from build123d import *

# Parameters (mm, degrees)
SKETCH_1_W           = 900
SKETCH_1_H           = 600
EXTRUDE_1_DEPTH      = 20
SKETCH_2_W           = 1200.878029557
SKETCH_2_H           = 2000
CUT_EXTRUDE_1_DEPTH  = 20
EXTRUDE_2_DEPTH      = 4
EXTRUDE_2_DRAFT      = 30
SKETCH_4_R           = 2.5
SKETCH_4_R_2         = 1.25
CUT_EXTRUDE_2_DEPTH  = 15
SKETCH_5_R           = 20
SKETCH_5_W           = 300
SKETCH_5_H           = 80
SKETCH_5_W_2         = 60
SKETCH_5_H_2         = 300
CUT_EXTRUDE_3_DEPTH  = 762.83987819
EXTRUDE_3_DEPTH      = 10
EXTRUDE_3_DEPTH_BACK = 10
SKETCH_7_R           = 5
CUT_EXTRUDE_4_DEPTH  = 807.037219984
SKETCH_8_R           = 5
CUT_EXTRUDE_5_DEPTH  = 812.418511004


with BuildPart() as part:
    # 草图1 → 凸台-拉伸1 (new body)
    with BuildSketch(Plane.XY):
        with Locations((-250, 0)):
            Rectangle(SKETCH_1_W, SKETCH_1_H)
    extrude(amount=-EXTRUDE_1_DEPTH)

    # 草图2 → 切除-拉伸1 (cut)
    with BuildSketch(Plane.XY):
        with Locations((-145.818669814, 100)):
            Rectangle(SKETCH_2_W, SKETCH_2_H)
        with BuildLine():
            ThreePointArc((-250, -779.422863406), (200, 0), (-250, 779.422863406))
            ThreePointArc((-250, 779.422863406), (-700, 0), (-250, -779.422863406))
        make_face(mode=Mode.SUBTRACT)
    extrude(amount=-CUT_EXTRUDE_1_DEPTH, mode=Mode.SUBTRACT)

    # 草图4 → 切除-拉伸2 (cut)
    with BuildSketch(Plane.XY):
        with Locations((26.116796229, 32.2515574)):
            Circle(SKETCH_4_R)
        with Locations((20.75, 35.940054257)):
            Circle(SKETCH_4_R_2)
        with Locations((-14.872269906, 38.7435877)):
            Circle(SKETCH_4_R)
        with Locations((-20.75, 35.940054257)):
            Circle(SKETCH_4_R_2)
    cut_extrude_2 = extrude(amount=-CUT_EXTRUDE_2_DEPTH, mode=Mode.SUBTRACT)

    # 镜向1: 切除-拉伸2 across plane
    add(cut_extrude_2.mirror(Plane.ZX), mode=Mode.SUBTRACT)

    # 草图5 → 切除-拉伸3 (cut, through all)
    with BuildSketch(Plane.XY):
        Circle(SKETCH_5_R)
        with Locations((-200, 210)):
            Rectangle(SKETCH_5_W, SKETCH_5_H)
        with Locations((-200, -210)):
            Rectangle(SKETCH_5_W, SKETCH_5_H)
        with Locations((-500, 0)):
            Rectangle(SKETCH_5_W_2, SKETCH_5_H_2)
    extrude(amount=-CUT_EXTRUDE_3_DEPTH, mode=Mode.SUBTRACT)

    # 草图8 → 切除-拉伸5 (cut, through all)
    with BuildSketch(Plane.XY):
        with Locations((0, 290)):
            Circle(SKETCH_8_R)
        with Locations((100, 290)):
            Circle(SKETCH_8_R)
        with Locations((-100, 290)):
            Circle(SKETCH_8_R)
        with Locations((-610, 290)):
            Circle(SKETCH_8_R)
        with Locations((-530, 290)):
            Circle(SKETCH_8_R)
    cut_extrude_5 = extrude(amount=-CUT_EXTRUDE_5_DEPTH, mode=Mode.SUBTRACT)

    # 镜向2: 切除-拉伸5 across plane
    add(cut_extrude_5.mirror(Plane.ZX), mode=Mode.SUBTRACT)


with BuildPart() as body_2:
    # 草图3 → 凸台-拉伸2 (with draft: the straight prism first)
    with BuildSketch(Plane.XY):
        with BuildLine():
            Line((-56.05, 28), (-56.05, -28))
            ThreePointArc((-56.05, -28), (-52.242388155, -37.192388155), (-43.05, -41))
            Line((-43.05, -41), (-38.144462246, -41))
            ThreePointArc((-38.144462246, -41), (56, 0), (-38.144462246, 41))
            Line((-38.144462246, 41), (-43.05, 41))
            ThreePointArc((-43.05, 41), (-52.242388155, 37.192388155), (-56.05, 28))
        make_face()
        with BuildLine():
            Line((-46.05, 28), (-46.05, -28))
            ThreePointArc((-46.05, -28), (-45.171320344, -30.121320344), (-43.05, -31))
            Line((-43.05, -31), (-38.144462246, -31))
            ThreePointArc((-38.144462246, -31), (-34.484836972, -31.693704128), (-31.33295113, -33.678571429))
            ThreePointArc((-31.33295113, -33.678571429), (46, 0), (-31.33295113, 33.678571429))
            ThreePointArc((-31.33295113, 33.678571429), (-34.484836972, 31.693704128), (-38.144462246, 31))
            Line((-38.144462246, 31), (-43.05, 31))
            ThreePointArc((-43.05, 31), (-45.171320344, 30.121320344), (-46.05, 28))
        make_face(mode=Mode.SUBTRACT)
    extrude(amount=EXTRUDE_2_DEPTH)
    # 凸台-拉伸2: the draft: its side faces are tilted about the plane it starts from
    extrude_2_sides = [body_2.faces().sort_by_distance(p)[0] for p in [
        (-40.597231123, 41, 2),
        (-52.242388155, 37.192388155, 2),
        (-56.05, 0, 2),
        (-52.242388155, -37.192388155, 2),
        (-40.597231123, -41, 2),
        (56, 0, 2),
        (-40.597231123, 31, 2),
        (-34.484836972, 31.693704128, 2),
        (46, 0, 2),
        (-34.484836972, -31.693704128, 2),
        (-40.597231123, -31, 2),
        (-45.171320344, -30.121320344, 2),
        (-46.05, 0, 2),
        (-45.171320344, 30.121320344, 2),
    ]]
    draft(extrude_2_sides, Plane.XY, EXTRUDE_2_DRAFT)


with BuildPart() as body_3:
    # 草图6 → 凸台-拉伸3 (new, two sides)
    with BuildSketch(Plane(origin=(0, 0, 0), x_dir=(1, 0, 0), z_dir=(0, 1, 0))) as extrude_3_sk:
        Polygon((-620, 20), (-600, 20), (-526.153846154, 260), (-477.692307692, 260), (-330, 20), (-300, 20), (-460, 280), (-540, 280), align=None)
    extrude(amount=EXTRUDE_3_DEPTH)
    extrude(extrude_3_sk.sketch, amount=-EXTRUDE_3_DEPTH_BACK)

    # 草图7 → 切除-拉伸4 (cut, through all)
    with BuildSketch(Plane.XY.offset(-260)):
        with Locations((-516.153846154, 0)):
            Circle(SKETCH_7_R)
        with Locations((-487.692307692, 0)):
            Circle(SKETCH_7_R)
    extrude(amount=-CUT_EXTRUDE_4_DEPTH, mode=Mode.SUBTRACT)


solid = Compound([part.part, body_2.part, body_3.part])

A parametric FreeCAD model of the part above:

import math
import FreeCAD as App
import Part
import Sketcher

V = App.Vector
Q = App.Units.Quantity


def faces_at(feature, points):
    """Names of the faces that lie closest to the given points."""
    faces = feature.Shape.Faces
    near = lambda p: min(range(len(faces)), key=lambda i: faces[i].distToShape(Part.Vertex(*p))[0])
    return sorted({f"Face{near(p) + 1}" for p in points})


def add_polygon(sketch, points):
    """Adds a closed chain of lines whose ends are joined by coincident constraints."""
    first, n = sketch.GeometryCount, len(points)
    for a, b in zip(points, points[1:] + points[:1]):
        sketch.addGeometry(Part.LineSegment(App.Vector(*a, 0), App.Vector(*b, 0)), False)
    for i in range(n):
        sketch.addConstraint(Sketcher.Constraint("Coincident", first + i, 2, first + (i + 1) % n, 1))

doc = App.newDocument("Part")
params = doc.addObject("Spreadsheet::Sheet", "Params")
for row, (alias, value) in enumerate([
    ("sketch1_width", "900 mm"),
    ("sketch1_height", "600 mm"),
    ("pad1_length", "20 mm"),
    ("sketch2_radius", "900 mm"),
    ("sketch2_height", "2000 mm"),
    ("pocket1_length", "20 mm"),
    ("sketch3_diameter", "5 mm"),
    ("sketch3_diameter2", "2.5 mm"),
    ("pocket2_length", "15 mm"),
    ("sketch4_diameter", "40 mm"),
    ("sketch4_width", "300 mm"),
    ("sketch4_width2", "60 mm"),
    ("sketch4_height", "80 mm"),
    ("sketch5_diameter", "10 mm"),
    ("sketch6_radius", "13 mm"),
    ("sketch6_radius2", "56 mm"),
    ("sketch6_radius3", "3 mm"),
    ("sketch6_height", "56 mm"),
    ("pad2_length", "4 mm"),
    ("draft_angle", "30 deg"),
    ("sketch7_width", "20 mm"),
    ("sketch7_width2", "30 mm"),
    ("sketch7_width3", "80 mm"),
    ("pad3_length", "10 mm"),
    ("pad3_length2", "10 mm"),
    ("sketch8_diameter", "10 mm"),
], start=1):
    params.set(f"A{row}", alias)
    params.set(f"B{row}", "=" + value)
    params.setAlias(f"B{row}", alias)

body = doc.addObject("PartDesign::Body", "Body")

# Sketch on XY plane
sketch1 = body.newObject("Sketcher::SketchObject", "Sketch")
sketch1.AttachmentSupport = (doc.getObject("XY_Plane"), [""])
sketch1.MapMode = "FlatFace"
add_polygon(sketch1, [(-700, 300), (-700, -300), (200, -300), (200, 300)])  # lines 0-3
sketch1.addConstraint(Sketcher.Constraint("Vertical", 0))
sketch1.addConstraint(Sketcher.Constraint("Horizontal", 1))
sketch1.addConstraint(Sketcher.Constraint("Vertical", 2))
sketch1.addConstraint(Sketcher.Constraint("Horizontal", 3))
sketch1.addConstraint(Sketcher.Constraint("DistanceX", 1, 1, 1, 2, Q("900 mm")))
sketch1.addConstraint(Sketcher.Constraint("DistanceY", 0, 2, 0, 1, Q("600 mm")))
sketch1.addConstraint(Sketcher.Constraint("DistanceX", 0, 2, -1, 1, Q("700 mm")))
sketch1.addConstraint(Sketcher.Constraint("DistanceY", 0, 2, -1, 1, Q("300 mm")))
sketch1.setExpression("Constraints[8]", "Params.sketch1_width")
sketch1.setExpression("Constraints[9]", "Params.sketch1_height")
pad1 = body.newObject("PartDesign::Pad", "Pad")
pad1.Profile = sketch1
pad1.setExpression("Length", "Params.pad1_length")
pad1.Reversed = True

# Sketch on XY plane
sketch2 = body.newObject("Sketcher::SketchObject", "Sketch001")
sketch2.AttachmentSupport = (doc.getObject("XY_Plane"), [""])
sketch2.MapMode = "FlatFace"
add_polygon(sketch2, [(-746.257685, 1100), (-746.257685, -900), (454.620345, -900), (454.620345, 1100)])  # lines 0-3
sketch2.addGeometry(Part.ArcOfCircle(Part.Circle(V(-700, 0, 0), V(0, 0, 1), 900), math.radians(-60), math.radians(60)), False)  # 4
sketch2.addGeometry(Part.ArcOfCircle(Part.Circle(V(200, 0, 0), V(0, 0, 1), 900), math.radians(120), math.radians(240)), False)  # 5
sketch2.addConstraint(Sketcher.Constraint("Coincident", 4, 1, 5, 2))
sketch2.addConstraint(Sketcher.Constraint("Coincident", 5, 1, 4, 2))
sketch2.addConstraint(Sketcher.Constraint("Vertical", 0))
sketch2.addConstraint(Sketcher.Constraint("Horizontal", 1))
sketch2.addConstraint(Sketcher.Constraint("Vertical", 2))
sketch2.addConstraint(Sketcher.Constraint("Horizontal", 3))
sketch2.addConstraint(Sketcher.Constraint("Equal", 4, 5))
sketch2.addConstraint(Sketcher.Constraint("Symmetric", 4, 1, 5, 1, -1))
sketch2.addConstraint(Sketcher.Constraint("Radius", 4, Q("900 mm")))
sketch2.addConstraint(Sketcher.Constraint("DistanceY", 0, 2, 0, 1, Q("2000 mm")))
sketch2.addConstraint(Sketcher.Constraint("DistanceX", 4, 3, -1, 1, Q("700 mm")))
sketch2.addConstraint(Sketcher.Constraint("DistanceX", -1, 1, 5, 3, Q("200 mm")))
sketch2.addConstraint(Sketcher.Constraint("DistanceY", 0, 2, -1, 1, Q("900 mm")))
sketch2.addConstraint(Sketcher.Constraint("DistanceX", 1, 1, 1, 2, Q("1200.87803 mm")))
sketch2.addConstraint(Sketcher.Constraint("DistanceX", 0, 2, -1, 1, Q("746.257685 mm")))
sketch2.setExpression("Constraints[12]", "Params.sketch2_radius")
sketch2.setExpression("Constraints[13]", "Params.sketch2_height")
pocket1 = body.newObject("PartDesign::Pocket", "Pocket")
pocket1.Profile = sketch2
pocket1.setExpression("Length", "Params.pocket1_length")

# Sketch on XY plane
sketch3 = body.newObject("Sketcher::SketchObject", "Sketch002")
sketch3.AttachmentSupport = (doc.getObject("XY_Plane"), [""])
sketch3.MapMode = "FlatFace"
sketch3.addGeometry(Part.Circle(V(26.116796, 32.251557, 0), V(0, 0, 1), 2.5), False)
sketch3.addGeometry(Part.Circle(V(20.75, 35.940054, 0), V(0, 0, 1), 1.25), False)
sketch3.addGeometry(Part.Circle(V(-14.87227, 38.743588, 0), V(0, 0, 1), 2.5), False)
sketch3.addGeometry(Part.Circle(V(-20.75, 35.940054, 0), V(0, 0, 1), 1.25), False)
sketch3.addConstraint(Sketcher.Constraint("Equal", 0, 2))
sketch3.addConstraint(Sketcher.Constraint("Equal", 1, 3))
sketch3.addConstraint(Sketcher.Constraint("Symmetric", 1, 3, 3, 3, -2))
sketch3.addConstraint(Sketcher.Constraint("Diameter", 0, Q("5 mm")))
sketch3.addConstraint(Sketcher.Constraint("Diameter", 1, Q("2.5 mm")))
sketch3.addConstraint(Sketcher.Constraint("DistanceX", 3, 3, 1, 3, Q("41.5 mm")))
sketch3.addConstraint(Sketcher.Constraint("DistanceX", 2, 3, -1, 1, Q("14.87227 mm")))
sketch3.addConstraint(Sketcher.Constraint("DistanceY", 0, 3, 2, 3, Q("6.49203 mm")))
sketch3.addConstraint(Sketcher.Constraint("DistanceX", -1, 1, 0, 3, Q("26.116796 mm")))
sketch3.addConstraint(Sketcher.Constraint("DistanceY", -1, 1, 0, 3, Q("32.251557 mm")))
sketch3.addConstraint(Sketcher.Constraint("DistanceY", -1, 1, 1, 3, Q("35.940054 mm")))
sketch3.setExpression("Constraints[3]", "Params.sketch3_diameter")
sketch3.setExpression("Constraints[4]", "Params.sketch3_diameter2")
pocket2 = body.newObject("PartDesign::Pocket", "Pocket001")
pocket2.Profile = sketch3
pocket2.setExpression("Length", "Params.pocket2_length")
doc.recompute()

mirrored = body.newObject("PartDesign::Mirrored", "Mirrored")
mirrored.Originals = [pocket2]
mirrored.MirrorPlane = (doc.getObject("XZ_Plane"), [""])
body.Tip = mirrored

# Sketch on XY plane
sketch4 = body.newObject("Sketcher::SketchObject", "Sketch003")
sketch4.AttachmentSupport = (doc.getObject("XY_Plane"), [""])
sketch4.MapMode = "FlatFace"
sketch4.addGeometry(Part.Circle(V(0, 0, 0), V(0, 0, 1), 20), False)  # 0
add_polygon(sketch4, [(-350, 250), (-350, 170), (-50, 170), (-50, 250)])  # lines 1-4
add_polygon(sketch4, [(-350, -170), (-350, -250), (-50, -250), (-50, -170)])  # lines 5-8
add_polygon(sketch4, [(-530, 150), (-530, -150), (-470, -150), (-470, 150)])  # lines 9-12
sketch4.addConstraint(Sketcher.Constraint("Vertical", 1))
sketch4.addConstraint(Sketcher.Constraint("Horizontal", 2))
sketch4.addConstraint(Sketcher.Constraint("Vertical", 3))
sketch4.addConstraint(Sketcher.Constraint("Horizontal", 4))
sketch4.addConstraint(Sketcher.Constraint("Vertical", 5))
sketch4.addConstraint(Sketcher.Constraint("Horizontal", 6))
sketch4.addConstraint(Sketcher.Constraint("Vertical", 7))
sketch4.addConstraint(Sketcher.Constraint("Horizontal", 8))
sketch4.addConstraint(Sketcher.Constraint("Vertical", 9))
sketch4.addConstraint(Sketcher.Constraint("Horizontal", 10))
sketch4.addConstraint(Sketcher.Constraint("Vertical", 11))
sketch4.addConstraint(Sketcher.Constraint("Horizontal", 12))
sketch4.addConstraint(Sketcher.Constraint("Coincident", 0, 3, -1, 1))
sketch4.addConstraint(Sketcher.Constraint("Symmetric", 4, 2, 5, 2, -1))
sketch4.addConstraint(Sketcher.Constraint("Symmetric", 2, 2, 7, 2, -1))
sketch4.addConstraint(Sketcher.Constraint("Equal", 8, 9))
sketch4.addConstraint(Sketcher.Constraint("Diameter", 0, Q("40 mm")))
sketch4.addConstraint(Sketcher.Constraint("DistanceX", 2, 1, 2, 2, Q("300 mm")))
sketch4.addConstraint(Sketcher.Constraint("DistanceX", 10, 1, 10, 2, Q("60 mm")))
sketch4.addConstraint(Sketcher.Constraint("DistanceY", 1, 2, 1, 1, Q("80 mm")))
sketch4.addConstraint(Sketcher.Constraint("DistanceX", 1, 2, -1, 1, Q("350 mm")))
sketch4.addConstraint(Sketcher.Constraint("DistanceY", -1, 1, 1, 2, Q("170 mm")))
sketch4.addConstraint(Sketcher.Constraint("DistanceX", 9, 2, -1, 1, Q("530 mm")))
sketch4.addConstraint(Sketcher.Constraint("DistanceY", 9, 2, -1, 1, Q("150 mm")))
sketch4.setExpression("Constraints[28]", "Params.sketch4_diameter")
sketch4.setExpression("Constraints[29]", "Params.sketch4_width")
sketch4.setExpression("Constraints[30]", "Params.sketch4_width2")
sketch4.setExpression("Constraints[31]", "Params.sketch4_height")
pocket3 = body.newObject("PartDesign::Pocket", "Pocket002")
pocket3.Profile = sketch4
pocket3.Type = "ThroughAll"

# Sketch on XY plane
sketch5 = body.newObject("Sketcher::SketchObject", "Sketch004")
sketch5.AttachmentSupport = (doc.getObject("XY_Plane"), [""])
sketch5.MapMode = "FlatFace"
sketch5.addGeometry(Part.Circle(V(0, 290, 0), V(0, 0, 1), 5), False)
sketch5.addGeometry(Part.Circle(V(100, 290, 0), V(0, 0, 1), 5), False)
sketch5.addGeometry(Part.Circle(V(-100, 290, 0), V(0, 0, 1), 5), False)
sketch5.addGeometry(Part.Circle(V(-610, 290, 0), V(0, 0, 1), 5), False)
sketch5.addGeometry(Part.Circle(V(-530, 290, 0), V(0, 0, 1), 5), False)
sketch5.addConstraint(Sketcher.Constraint("Equal", 0, 1))
sketch5.addConstraint(Sketcher.Constraint("Equal", 1, 2))
sketch5.addConstraint(Sketcher.Constraint("Equal", 2, 3))
sketch5.addConstraint(Sketcher.Constraint("Equal", 3, 4))
sketch5.addConstraint(Sketcher.Constraint("Symmetric", 1, 3, 2, 3, -2))
sketch5.addConstraint(Sketcher.Constraint("PointOnObject", 0, 3, -2))
sketch5.addConstraint(Sketcher.Constraint("Horizontal", 0, 3, 1, 3))
sketch5.addConstraint(Sketcher.Constraint("Horizontal", 2, 3, 3, 3))
sketch5.addConstraint(Sketcher.Constraint("Horizontal", 3, 3, 4, 3))
sketch5.addConstraint(Sketcher.Constraint("Diameter", 0, Q("10 mm")))
sketch5.addConstraint(Sketcher.Constraint("DistanceY", -1, 1, 0, 3, Q("290 mm")))
sketch5.addConstraint(Sketcher.Constraint("DistanceX", -1, 1, 1, 3, Q("100 mm")))
sketch5.addConstraint(Sketcher.Constraint("DistanceX", 3, 3, -1, 1, Q("610 mm")))
sketch5.addConstraint(Sketcher.Constraint("DistanceX", 4, 3, -1, 1, Q("530 mm")))
sketch5.setExpression("Constraints[9]", "Params.sketch5_diameter")
pocket4 = body.newObject("PartDesign::Pocket", "Pocket003")
pocket4.Profile = sketch5
pocket4.Type = "ThroughAll"
doc.recompute()

mirrored2 = body.newObject("PartDesign::Mirrored", "Mirrored001")
mirrored2.Originals = [pocket4]
mirrored2.MirrorPlane = (doc.getObject("XZ_Plane"), [""])
body.Tip = mirrored2
body2 = doc.addObject("PartDesign::Body", "Body001")

# Sketch on XY plane
sketch6 = body2.newObject("Sketcher::SketchObject", "Sketch005")
sketch6.AttachmentSupport = (doc.getObject("XY_Plane001"), [""])
sketch6.MapMode = "FlatFace"
sketch6.addGeometry(Part.LineSegment(V(-56.05, 28, 0), V(-56.05, -28, 0)), False)
sketch6.addGeometry(Part.ArcOfCircle(Part.Circle(V(-43.05, -28, 0), V(0, 0, 1), 13), math.radians(-180), math.radians(-90)), False)
sketch6.addGeometry(Part.LineSegment(V(-43.05, -41, 0), V(-38.144462, -41, 0)), False)
sketch6.addGeometry(Part.ArcOfCircle(Part.Circle(V(0, 0, 0), V(0, 0, 1), 56), math.radians(-132.933661), math.radians(132.933661)), False)
sketch6.addGeometry(Part.LineSegment(V(-38.144462, 41, 0), V(-43.05, 41, 0)), False)
sketch6.addGeometry(Part.ArcOfCircle(Part.Circle(V(-43.05, 28, 0), V(0, 0, 1), 13), math.radians(90), math.radians(180)), False)
sketch6.addGeometry(Part.LineSegment(V(-46.05, -28, 0), V(-46.05, 28, 0)), False)
sketch6.addGeometry(Part.ArcOfCircle(Part.Circle(V(-43.05, 28, 0), V(0, 0, 1), 3), math.radians(90), math.radians(180)), False)
sketch6.addGeometry(Part.LineSegment(V(-43.05, 31, 0), V(-38.144462, 31, 0)), False)
sketch6.addGeometry(Part.ArcOfCircle(Part.Circle(V(-38.144462, 41, 0), V(0, 0, 1), 10), math.radians(-90), math.radians(-47.066339)), False)
sketch6.addGeometry(Part.ArcOfCircle(Part.Circle(V(0, 0, 0), V(0, 0, 1), 46), math.radians(-132.933661), math.radians(132.933661)), False)
sketch6.addGeometry(Part.ArcOfCircle(Part.Circle(V(-38.144462, -41, 0), V(0, 0, 1), 10), math.radians(47.066339), math.radians(90)), False)
sketch6.addGeometry(Part.LineSegment(V(-38.144462, -31, 0), V(-43.05, -31, 0)), False)
sketch6.addGeometry(Part.ArcOfCircle(Part.Circle(V(-43.05, -28, 0), V(0, 0, 1), 3), math.radians(180), math.radians(270)), False)
sketch6.addConstraint(Sketcher.Constraint("Tangent", 0, 2, 1, 1))
sketch6.addConstraint(Sketcher.Constraint("Tangent", 1, 2, 2, 1))
sketch6.addConstraint(Sketcher.Constraint("Coincident", 2, 2, 3, 1))
sketch6.addConstraint(Sketcher.Constraint("Coincident", 3, 2, 4, 1))
sketch6.addConstraint(Sketcher.Constraint("Tangent", 4, 2, 5, 1))
sketch6.addConstraint(Sketcher.Constraint("Tangent", 5, 2, 0, 1))
sketch6.addConstraint(Sketcher.Constraint("Tangent", 6, 2, 7, 2))
sketch6.addConstraint(Sketcher.Constraint("Tangent", 7, 1, 8, 1))
sketch6.addConstraint(Sketcher.Constraint("Tangent", 8, 2, 9, 1))
sketch6.addConstraint(Sketcher.Constraint("Tangent", 9, 2, 10, 2))
sketch6.addConstraint(Sketcher.Constraint("Tangent", 10, 1, 11, 1))
sketch6.addConstraint(Sketcher.Constraint("Tangent", 11, 2, 12, 1))
sketch6.addConstraint(Sketcher.Constraint("Tangent", 12, 2, 13, 2))
sketch6.addConstraint(Sketcher.Constraint("Tangent", 13, 1, 6, 1))
sketch6.addConstraint(Sketcher.Constraint("Vertical", 0))
sketch6.addConstraint(Sketcher.Constraint("Horizontal", 2))
sketch6.addConstraint(Sketcher.Constraint("Horizontal", 4))
sketch6.addConstraint(Sketcher.Constraint("Vertical", 6))
sketch6.addConstraint(Sketcher.Constraint("Horizontal", 8))
sketch6.addConstraint(Sketcher.Constraint("Horizontal", 12))
sketch6.addConstraint(Sketcher.Constraint("Coincident", 3, 3, -1, 1))
sketch6.addConstraint(Sketcher.Constraint("Coincident", 10, 3, -1, 1))
sketch6.addConstraint(Sketcher.Constraint("Coincident", 7, 3, 5, 3))
sketch6.addConstraint(Sketcher.Constraint("Coincident", 13, 3, 1, 3))
sketch6.addConstraint(Sketcher.Constraint("Coincident", 2, 2, 11, 3))
sketch6.addConstraint(Sketcher.Constraint("Equal", 1, 5))
sketch6.addConstraint(Sketcher.Constraint("Equal", 9, 11))
sketch6.addConstraint(Sketcher.Constraint("Vertical", 9, 3, 11, 3))
sketch6.addConstraint(Sketcher.Constraint("Radius", 1, Q("13 mm")))
sketch6.addConstraint(Sketcher.Constraint("Radius", 3, Q("56 mm")))
sketch6.addConstraint(Sketcher.Constraint("Radius", 7, Q("3 mm")))
sketch6.addConstraint(Sketcher.Constraint("DistanceY", 0, 2, 0, 1, Q("56 mm")))
sketch6.addConstraint(Sketcher.Constraint("DistanceX", 1, 3, -1, 1, Q("43.05 mm")))
sketch6.setExpression("Constraints[28]", "Params.sketch6_radius")
sketch6.setExpression("Constraints[29]", "Params.sketch6_radius2")
sketch6.setExpression("Constraints[30]", "Params.sketch6_radius3")
sketch6.setExpression("Constraints[31]", "Params.sketch6_height")
pad2 = body2.newObject("PartDesign::Pad", "Pad001")
pad2.Profile = sketch6
pad2.setExpression("Length", "Params.pad2_length")
doc.recompute()

draft = body2.newObject("PartDesign::Draft", "Draft")
draft.Base = (pad2, faces_at(pad2, [
    (-40.597, 41, 2),
    (-52.242, 37.192, 2),
    (-56.05, 0, 2),
    (-52.242, -37.192, 2),
    (-40.597, -41, 2),
    (56, 0, 2),
    (-40.597, 31, 2),
    (-34.485, 31.694, 2),
    (46, 0, 2),
    (-34.485, -31.694, 2),
    (-40.597, -31, 2),
    (-45.171, -30.121, 2),
    (-46.05, 0, 2),
    (-45.171, 30.121, 2),
]))
draft.NeutralPlane = (doc.getObject("XY_Plane001"), [""])
draft.setExpression("Angle", "Params.draft_angle")
draft.Reversed = False
body3 = doc.addObject("PartDesign::Body", "Body002")

# Sketch on XZ plane
sketch7 = body3.newObject("Sketcher::SketchObject", "Sketch006")
sketch7.AttachmentSupport = (doc.getObject("XZ_Plane002"), [""])
sketch7.MapMode = "FlatFace"
add_polygon(sketch7, [(-620, -20), (-600, -20), (-526.153846, -260), (-477.692308, -260), (-330, -20), (-300, -20), (-460, -280), (-540, -280)])  # lines 0-7
sketch7.addConstraint(Sketcher.Constraint("Horizontal", 0))
sketch7.addConstraint(Sketcher.Constraint("Horizontal", 2))
sketch7.addConstraint(Sketcher.Constraint("Horizontal", 4))
sketch7.addConstraint(Sketcher.Constraint("Horizontal", 6))
sketch7.addConstraint(Sketcher.Constraint("Parallel", 3, 5))
sketch7.addConstraint(Sketcher.Constraint("Parallel", 1, 7))
sketch7.addConstraint(Sketcher.Constraint("Horizontal", 0, 2, 3, 2))
sketch7.addConstraint(Sketcher.Constraint("DistanceX", 0, 1, 0, 2, Q("20 mm")))
sketch7.addConstraint(Sketcher.Constraint("DistanceX", 4, 1, 4, 2, Q("30 mm")))
sketch7.addConstraint(Sketcher.Constraint("DistanceX", 6, 2, 6, 1, Q("80 mm")))
sketch7.addConstraint(Sketcher.Constraint("DistanceX", 0, 2, -1, 1, Q("600 mm")))
sketch7.addConstraint(Sketcher.Constraint("DistanceY", 0, 2, -1, 1, Q("20 mm")))
sketch7.addConstraint(Sketcher.Constraint("DistanceY", 1, 2, -1, 1, Q("260 mm")))
sketch7.addConstraint(Sketcher.Constraint("DistanceX", 3, 2, -1, 1, Q("330 mm")))
sketch7.addConstraint(Sketcher.Constraint("DistanceX", 5, 2, -1, 1, Q("460 mm")))
sketch7.addConstraint(Sketcher.Constraint("DistanceY", 5, 2, -1, 1, Q("280 mm")))
sketch7.setExpression("Constraints[15]", "Params.sketch7_width")
sketch7.setExpression("Constraints[16]", "Params.sketch7_width2")
sketch7.setExpression("Constraints[17]", "Params.sketch7_width3")
pad3 = body3.newObject("PartDesign::Pad", "Pad002")
pad3.Profile = sketch7
pad3.Type = "TwoLengths"
pad3.setExpression("Length", "Params.pad3_length")
pad3.setExpression("Length2", "Params.pad3_length2")
pad3.Reversed = True

# Sketch on XY plane
sketch8 = body3.newObject("Sketcher::SketchObject", "Sketch007")
sketch8.AttachmentSupport = (doc.getObject("XY_Plane002"), [""])
sketch8.MapMode = "FlatFace"
sketch8.AttachmentOffset = App.Placement(V(0, 0, -260), App.Rotation())
sketch8.addGeometry(Part.Circle(V(-516.153846, 0, 0), V(0, 0, 1), 5), False)
sketch8.addGeometry(Part.Circle(V(-487.692308, 0, 0), V(0, 0, 1), 5), False)
sketch8.addConstraint(Sketcher.Constraint("Equal", 0, 1))
sketch8.addConstraint(Sketcher.Constraint("PointOnObject", 0, 3, -1))
sketch8.addConstraint(Sketcher.Constraint("PointOnObject", 1, 3, -1))
sketch8.addConstraint(Sketcher.Constraint("Diameter", 0, Q("10 mm")))
sketch8.addConstraint(Sketcher.Constraint("DistanceX", 0, 3, 1, 3, Q("28.461538 mm")))
sketch8.addConstraint(Sketcher.Constraint("DistanceX", 0, 3, -1, 1, Q("516.153846 mm")))
sketch8.setExpression("Constraints[3]", "Params.sketch8_diameter")
pocket5 = body3.newObject("PartDesign::Pocket", "Pocket004")
pocket5.Profile = sketch8
pocket5.Type = "ThroughAll"

doc.recompute()
